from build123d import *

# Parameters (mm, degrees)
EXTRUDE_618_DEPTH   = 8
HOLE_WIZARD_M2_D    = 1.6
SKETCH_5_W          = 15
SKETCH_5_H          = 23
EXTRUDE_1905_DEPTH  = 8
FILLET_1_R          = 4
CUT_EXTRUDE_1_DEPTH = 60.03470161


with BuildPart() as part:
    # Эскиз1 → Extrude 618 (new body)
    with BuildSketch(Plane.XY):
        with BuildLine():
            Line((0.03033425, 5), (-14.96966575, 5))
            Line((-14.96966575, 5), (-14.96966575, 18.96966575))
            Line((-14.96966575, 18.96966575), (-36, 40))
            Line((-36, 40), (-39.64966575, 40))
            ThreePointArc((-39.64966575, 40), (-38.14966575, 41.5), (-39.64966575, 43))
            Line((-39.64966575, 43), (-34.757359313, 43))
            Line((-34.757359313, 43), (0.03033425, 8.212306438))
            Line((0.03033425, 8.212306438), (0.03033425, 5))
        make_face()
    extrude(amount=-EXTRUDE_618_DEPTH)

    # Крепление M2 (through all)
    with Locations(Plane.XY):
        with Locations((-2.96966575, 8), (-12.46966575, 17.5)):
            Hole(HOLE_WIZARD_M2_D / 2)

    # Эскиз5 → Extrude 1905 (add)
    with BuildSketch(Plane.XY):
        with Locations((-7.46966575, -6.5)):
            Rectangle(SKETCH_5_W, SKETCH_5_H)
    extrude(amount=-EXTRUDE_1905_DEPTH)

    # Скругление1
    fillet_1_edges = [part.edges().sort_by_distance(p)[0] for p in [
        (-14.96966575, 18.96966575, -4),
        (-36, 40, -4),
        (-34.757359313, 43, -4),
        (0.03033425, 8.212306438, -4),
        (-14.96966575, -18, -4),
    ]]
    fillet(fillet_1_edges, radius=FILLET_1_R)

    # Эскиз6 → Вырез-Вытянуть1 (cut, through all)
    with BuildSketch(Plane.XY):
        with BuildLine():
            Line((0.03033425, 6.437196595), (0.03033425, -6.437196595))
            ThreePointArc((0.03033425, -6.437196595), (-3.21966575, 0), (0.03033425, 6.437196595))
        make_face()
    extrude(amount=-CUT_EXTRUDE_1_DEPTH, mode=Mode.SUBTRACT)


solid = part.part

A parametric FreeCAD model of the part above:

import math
import FreeCAD as App
import Part
import Sketcher
Q = App.Units.Quantity


def edges_at(feature, points):
    """Names of the edges that pass closest to the given points."""
    edges = feature.Shape.Edges
    near = lambda p: min(range(len(edges)), key=lambda i: edges[i].distToShape(Part.Vertex(*p))[0])
    return sorted({f"Edge{near(p) + 1}" for p in points})


def add_polygon(sketch, points):
    """Adds a closed chain of lines whose ends are joined by coincident constraints."""
    first, n = sketch.GeometryCount, len(points)
    for a, b in zip(points, points[1:] + points[:1]):
        sketch.addGeometry(Part.LineSegment(App.Vector(*a, 0), App.Vector(*b, 0)), False)
    for i in range(n):
        sketch.addConstraint(Sketcher.Constraint("Coincident", first + i, 2, first + (i + 1) % n, 1))

doc = App.newDocument("Part")
body = doc.addObject("PartDesign::Body", "Body")

sketch1 = body.newObject("Sketcher::SketchObject", "Sketch")
sketch1.AttachmentSupport = (doc.getObject("XY_Plane"), [""])
sketch1.MapMode = "FlatFace"
sketch1.addGeometry(Part.LineSegment(App.Vector(-15, 5, 0), App.Vector(0, 5, 0)), False)
sketch1.addGeometry(Part.LineSegment(App.Vector(0, 5, 0), App.Vector(0, 8.2, 0)), False)
sketch1.addGeometry(Part.LineSegment(App.Vector(0, 8.2, 0), App.Vector(-34.8, 43, 0)), False)
sketch1.addGeometry(Part.LineSegment(App.Vector(-34.8, 43, 0), App.Vector(-39.6, 43, 0)), False)
sketch1.addGeometry(Part.ArcOfCircle(Part.Circle(App.Vector(-39.6, 41.5, 0), App.Vector(0, 0, 1), 1.5), math.radians(-90), math.radians(90)), False)
sketch1.addGeometry(Part.LineSegment(App.Vector(-39.6, 40, 0), App.Vector(-36, 40, 0)), False)
sketch1.addGeometry(Part.LineSegment(App.Vector(-36, 40, 0), App.Vector(-15, 19, 0)), False)
sketch1.addGeometry(Part.LineSegment(App.Vector(-15, 19, 0), App.Vector(-15, 5, 0)), False)
sketch1.addConstraint(Sketcher.Constraint("Coincident", 0, 2, 1, 1))
sketch1.addConstraint(Sketcher.Constraint("Coincident", 1, 2, 2, 1))
sketch1.addConstraint(Sketcher.Constraint("Coincident", 2, 2, 3, 1))
sketch1.addConstraint(Sketcher.Constraint("Tangent", 3, 2, 4, 2))
sketch1.addConstraint(Sketcher.Constraint("Tangent", 4, 1, 5, 1))
sketch1.addConstraint(Sketcher.Constraint("Coincident", 5, 2, 6, 1))
sketch1.addConstraint(Sketcher.Constraint("Coincident", 6, 2, 7, 1))
sketch1.addConstraint(Sketcher.Constraint("Coincident", 7, 2, 0, 1))
sketch1.addConstraint(Sketcher.Constraint("Horizontal", 0))
sketch1.addConstraint(Sketcher.Constraint("Vertical", 1))
sketch1.addConstraint(Sketcher.Constraint("Horizontal", 3))
sketch1.addConstraint(Sketcher.Constraint("Horizontal", 5))
sketch1.addConstraint(Sketcher.Constraint("Vertical", 7))
sketch1.addConstraint(Sketcher.Constraint("Parallel", 2, 6))
sketch1.addConstraint(Sketcher.Constraint("Radius", 4, 1.5))
sketch1.addConstraint(Sketcher.Constraint("DistanceX", 0, 1, 0, 2, 15.0))
sketch1.addConstraint(Sketcher.Constraint("Angle", 2, Q("135 deg")))
sketch1.addConstraint(Sketcher.Constraint("DistanceY", -1, 1, 0, 2, 5.0))
sketch1.addConstraint(Sketcher.Constraint("DistanceY", -1, 1, 2, 2, 43.0))
sketch1.addConstraint(Sketcher.Constraint("DistanceX", 5, 2, -1, 1, 36.0))
sketch1.addConstraint(Sketcher.Constraint("DistanceX", 4, 3, 0, 2, 39.68))
sketch1.addConstraint(Sketcher.Constraint("Distance", 2, 49.197228))
sketch1.addConstraint(Sketcher.Constraint("DistanceX", 5, 1, 5, 2, 3.649666))
pad1 = body.newObject("PartDesign::Pad", "Pad")
pad1.Profile = sketch1
pad1.Length = 8
pad1.Reversed = True

sketch2 = body.newObject("Sketcher::SketchObject", "Sketch001")
sketch2.AttachmentSupport = (doc.getObject("XY_Plane"), [""])
sketch2.MapMode = "FlatFace"
sketch2.addGeometry(Part.Circle(App.Vector(-3, 8, 0), App.Vector(0, 0, 1), 0.8), False)
sketch2.addGeometry(Part.Circle(App.Vector(-12.5, 17.5, 0), App.Vector(0, 0, 1), 0.8), False)
sketch2.addConstraint(Sketcher.Constraint("Equal", 0, 1))
sketch2.addConstraint(Sketcher.Constraint("Diameter", 0, 1.6))
sketch2.addConstraint(Sketcher.Constraint("DistanceY", -1, 1, 0, 3, 8.0))
sketch2.addConstraint(Sketcher.Constraint("DistanceY", -1, 1, 1, 3, 17.5))
sketch2.addConstraint(Sketcher.Constraint("DistanceX", 1, 3, 0, 3, 9.5))
sketch2.addConstraint(Sketcher.Constraint("DistanceX", 0, 3, -1, 1, 2.969666))
doc.recompute()
hole = body.newObject("PartDesign::Hole", "Hole")
hole.Profile = sketch2
hole.ThreadType = "None"
hole.Diameter = 1.6
hole.DepthType = "ThroughAll"

sketch3 = body.newObject("Sketcher::SketchObject", "Sketch002")
sketch3.AttachmentSupport = (doc.getObject("XY_Plane"), [""])
sketch3.MapMode = "FlatFace"
add_polygon(sketch3, [(-15, 5), (-15, -18), (0, -18), (0, 5)])
sketch3.addConstraint(Sketcher.Constraint("Vertical", 0))
sketch3.addConstraint(Sketcher.Constraint("Horizontal", 1))
sketch3.addConstraint(Sketcher.Constraint("Vertical", 2))
sketch3.addConstraint(Sketcher.Constraint("Horizontal", 3))
sketch3.addConstraint(Sketcher.Constraint("DistanceX", 1, 1, 1, 2, 15.0))
sketch3.addConstraint(Sketcher.Constraint("DistanceY", 0, 2, 0, 1, 23.0))
sketch3.addConstraint(Sketcher.Constraint("DistanceY", 0, 2, -1, 1, 18.0))
sketch3.addConstraint(Sketcher.Constraint("DistanceX", 0, 2, -1, 1, 14.969666))
pad2 = body.newObject("PartDesign::Pad", "Pad001")
pad2.Profile = sketch3
pad2.Length = 8
pad2.Reversed = True
doc.recompute()

fillet = body.newObject("PartDesign::Fillet", "Fillet")
fillet.Base = (pad2, edges_at(pad2, [
    (-14.97, 18.97, -4),
    (-36, 40, -4),
    (-34.757, 43, -4),
    (0.03, 8.212, -4),
    (-14.97, -18, -4),
]))
fillet.Radius = 4

sketch4 = body.newObject("Sketcher::SketchObject", "Sketch003")
sketch4.AttachmentSupport = (doc.getObject("XY_Plane"), [""])
sketch4.MapMode = "FlatFace"
sketch4.addGeometry(Part.LineSegment(App.Vector(0, -6, 0), App.Vector(0, 6, 0)), False)
sketch4.addGeometry(Part.ArcOfCircle(Part.Circle(App.Vector(5, 0, 0), App.Vector(0, 0, 1), 8), math.radians(126), math.radians(234)), False)
sketch4.addConstraint(Sketcher.Constraint("Coincident", 0, 1, 1, 2))
sketch4.addConstraint(Sketcher.Constraint("Coincident", 1, 1, 0, 2))
sketch4.addConstraint(Sketcher.Constraint("Vertical", 0))
sketch4.addConstraint(Sketcher.Constraint("PointOnObject", 1, 3, -1))
sketch4.addConstraint(Sketcher.Constraint("Radius", 1, 8.0))
sketch4.addConstraint(Sketcher.Constraint("DistanceX", 0, 1, 1, 3, 4.75))
sketch4.addConstraint(Sketcher.Constraint("DistanceX", -1, 1, 1, 3, 4.780334))
pocket1 = body.newObject("PartDesign::Pocket", "Pocket")
pocket1.Profile = sketch4
pocket1.Type = "ThroughAll"

doc.recompute()
